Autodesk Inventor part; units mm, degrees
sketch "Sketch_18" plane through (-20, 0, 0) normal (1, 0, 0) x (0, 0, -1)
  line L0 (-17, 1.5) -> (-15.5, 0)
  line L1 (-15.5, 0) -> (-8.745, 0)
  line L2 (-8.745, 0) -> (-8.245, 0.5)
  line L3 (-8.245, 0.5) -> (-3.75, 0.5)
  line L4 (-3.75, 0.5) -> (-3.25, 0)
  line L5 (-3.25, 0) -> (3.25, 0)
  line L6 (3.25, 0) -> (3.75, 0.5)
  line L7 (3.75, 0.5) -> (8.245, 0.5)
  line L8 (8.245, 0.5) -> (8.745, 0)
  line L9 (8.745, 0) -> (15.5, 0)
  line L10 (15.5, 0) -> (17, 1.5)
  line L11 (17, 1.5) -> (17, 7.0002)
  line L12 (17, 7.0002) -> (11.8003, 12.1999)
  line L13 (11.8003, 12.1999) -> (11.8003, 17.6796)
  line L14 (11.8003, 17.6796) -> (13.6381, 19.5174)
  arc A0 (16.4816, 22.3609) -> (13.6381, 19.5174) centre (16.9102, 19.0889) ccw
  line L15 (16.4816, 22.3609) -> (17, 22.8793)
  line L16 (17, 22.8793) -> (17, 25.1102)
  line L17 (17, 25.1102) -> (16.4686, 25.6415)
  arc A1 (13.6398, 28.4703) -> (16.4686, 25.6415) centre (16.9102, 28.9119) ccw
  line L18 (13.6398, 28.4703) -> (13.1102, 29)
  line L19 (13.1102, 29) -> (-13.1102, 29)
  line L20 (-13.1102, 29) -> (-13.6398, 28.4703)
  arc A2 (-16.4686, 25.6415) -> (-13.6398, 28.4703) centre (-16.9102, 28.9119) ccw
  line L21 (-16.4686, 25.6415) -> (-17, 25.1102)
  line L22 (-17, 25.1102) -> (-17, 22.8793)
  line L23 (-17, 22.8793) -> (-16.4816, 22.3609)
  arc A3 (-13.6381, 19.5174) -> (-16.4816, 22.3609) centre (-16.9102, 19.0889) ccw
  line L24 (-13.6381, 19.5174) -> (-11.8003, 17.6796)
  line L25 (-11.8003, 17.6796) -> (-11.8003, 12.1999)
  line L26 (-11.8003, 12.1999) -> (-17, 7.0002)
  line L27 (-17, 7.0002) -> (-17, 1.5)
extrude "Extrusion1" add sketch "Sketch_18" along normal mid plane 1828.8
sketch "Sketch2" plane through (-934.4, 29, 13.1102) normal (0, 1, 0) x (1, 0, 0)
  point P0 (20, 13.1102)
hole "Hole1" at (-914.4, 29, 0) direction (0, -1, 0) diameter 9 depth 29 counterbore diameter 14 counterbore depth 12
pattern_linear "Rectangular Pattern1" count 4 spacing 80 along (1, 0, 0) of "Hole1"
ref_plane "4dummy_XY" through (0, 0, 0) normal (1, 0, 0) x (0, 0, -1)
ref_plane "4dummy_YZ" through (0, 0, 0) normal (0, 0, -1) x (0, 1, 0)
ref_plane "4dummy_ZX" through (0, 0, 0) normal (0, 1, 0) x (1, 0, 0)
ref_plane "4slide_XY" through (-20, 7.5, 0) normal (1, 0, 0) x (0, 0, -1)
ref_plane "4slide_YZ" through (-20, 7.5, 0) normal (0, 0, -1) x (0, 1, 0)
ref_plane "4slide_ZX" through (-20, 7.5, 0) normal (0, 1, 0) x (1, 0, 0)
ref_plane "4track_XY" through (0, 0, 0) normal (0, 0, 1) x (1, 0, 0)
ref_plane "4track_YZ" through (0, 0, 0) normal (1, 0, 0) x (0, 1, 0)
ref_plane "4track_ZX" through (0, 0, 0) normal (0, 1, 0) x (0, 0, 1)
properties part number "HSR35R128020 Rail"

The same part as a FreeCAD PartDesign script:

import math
import FreeCAD as App
import Part
import Sketcher

doc = App.newDocument("Part")
body = doc.addObject("PartDesign::Body", "Body")

# Sketch on YZ plane
sketch1 = doc.addObject("Sketcher::SketchObject", "Sketch")
body.addObject(sketch1)
sketch1.AttachmentSupport = (doc.YZ_Plane, [""])
sketch1.MapMode = "FlatFace"
sketch1.AttachmentOffset = App.Placement(App.Vector(0, 0, -20), App.Rotation())
sketch1.addGeometry(Part.LineSegment(App.Vector(7.0002, 17, 0), App.Vector(1.5, 17, 0)), False)
sketch1.addGeometry(Part.LineSegment(App.Vector(1.5, 17, 0), App.Vector(0, 15.5, 0)), False)
sketch1.addGeometry(Part.LineSegment(App.Vector(0, 15.5, 0), App.Vector(0, 8.745, 0)), False)
sketch1.addGeometry(Part.LineSegment(App.Vector(0, 8.745, 0), App.Vector(0.5, 8.245, 0)), False)
sketch1.addGeometry(Part.LineSegment(App.Vector(0.5, 8.245, 0), App.Vector(0.5, 3.75, 0)), False)
sketch1.addGeometry(Part.LineSegment(App.Vector(0.5, 3.75, 0), App.Vector(0, 3.25, 0)), False)
sketch1.addGeometry(Part.LineSegment(App.Vector(0, 3.25, 0), App.Vector(0, -3.25, 0)), False)
sketch1.addGeometry(Part.LineSegment(App.Vector(0, -3.25, 0), App.Vector(0.5, -3.75, 0)), False)
sketch1.addGeometry(Part.LineSegment(App.Vector(0.5, -3.75, 0), App.Vector(0.5, -8.245, 0)), False)
sketch1.addGeometry(Part.LineSegment(App.Vector(0.5, -8.245, 0), App.Vector(0, -8.745, 0)), False)
sketch1.addGeometry(Part.LineSegment(App.Vector(0, -8.745, 0), App.Vector(0, -15.5, 0)), False)
sketch1.addGeometry(Part.LineSegment(App.Vector(0, -15.5, 0), App.Vector(1.5, -17, 0)), False)
sketch1.addGeometry(Part.LineSegment(App.Vector(1.5, -17, 0), App.Vector(7.0002, -17, 0)), False)
sketch1.addGeometry(Part.LineSegment(App.Vector(7.0002, -17, 0), App.Vector(12.1999, -11.8003, 0)), False)
sketch1.addGeometry(Part.LineSegment(App.Vector(12.1999, -11.8003, 0), App.Vector(17.6796, -11.8003, 0)), False)
sketch1.addGeometry(Part.LineSegment(App.Vector(17.6796, -11.8003, 0), App.Vector(19.5174, -13.6381, 0)), False)
sketch1.addGeometry(Part.ArcOfCircle(Part.Circle(App.Vector(19.0889, -16.9102, 0), App.Vector(0, 0, 1), 3.299952), math.radians(7.462698), math.radians(82.539249)), False)
sketch1.addGeometry(Part.LineSegment(App.Vector(22.3609, -16.4816, 0), App.Vector(22.8793, -17, 0)), False)
sketch1.addGeometry(Part.LineSegment(App.Vector(22.8793, -17, 0), App.Vector(25.1102, -17, 0)), False)
sketch1.addGeometry(Part.LineSegment(App.Vector(25.1102, -17, 0), App.Vector(25.6415, -16.4686, 0)), False)
sketch1.addGeometry(Part.ArcOfCircle(Part.Circle(App.Vector(28.9119, -16.9102, 0), App.Vector(0, 0, 1), 3.30008), math.radians(97.6901), math.radians(172.3099)), False)
sketch1.addGeometry(Part.LineSegment(App.Vector(28.4703, -13.6398, 0), App.Vector(29, -13.1102, 0)), False)
sketch1.addGeometry(Part.LineSegment(App.Vector(29, -13.1102, 0), App.Vector(29, 13.1102, 0)), False)
sketch1.addGeometry(Part.LineSegment(App.Vector(29, 13.1102, 0), App.Vector(28.4703, 13.6398, 0)), False)
sketch1.addGeometry(Part.ArcOfCircle(Part.Circle(App.Vector(28.9119, 16.9102, 0), App.Vector(0, 0, 1), 3.30008), math.radians(-172.3099), math.radians(-97.6901)), False)
sketch1.addGeometry(Part.LineSegment(App.Vector(25.6415, 16.4686, 0), App.Vector(25.1102, 17, 0)), False)
sketch1.addGeometry(Part.LineSegment(App.Vector(25.1102, 17, 0), App.Vector(22.8793, 17, 0)), False)
sketch1.addGeometry(Part.LineSegment(App.Vector(22.8793, 17, 0), App.Vector(22.3609, 16.4816, 0)), False)
sketch1.addGeometry(Part.ArcOfCircle(Part.Circle(App.Vector(19.0889, 16.9102, 0), App.Vector(0, 0, 1), 3.300038), math.radians(-82.539249), math.radians(-7.462698)), False)
sketch1.addGeometry(Part.LineSegment(App.Vector(19.5174, 13.6381, 0), App.Vector(17.6796, 11.8003, 0)), False)
sketch1.addGeometry(Part.LineSegment(App.Vector(17.6796, 11.8003, 0), App.Vector(12.1999, 11.8003, 0)), False)
sketch1.addGeometry(Part.LineSegment(App.Vector(12.1999, 11.8003, 0), App.Vector(7.0002, 17, 0)), False)
sketch1.addConstraint(Sketcher.Constraint("Coincident", 0, 2, 1, 1))
sketch1.addConstraint(Sketcher.Constraint("Coincident", 1, 2, 2, 1))
sketch1.addConstraint(Sketcher.Constraint("Coincident", 2, 2, 3, 1))
sketch1.addConstraint(Sketcher.Constraint("Coincident", 3, 2, 4, 1))
sketch1.addConstraint(Sketcher.Constraint("Coincident", 4, 2, 5, 1))
sketch1.addConstraint(Sketcher.Constraint("Coincident", 5, 2, 6, 1))
sketch1.addConstraint(Sketcher.Constraint("Coincident", 6, 2, 7, 1))
sketch1.addConstraint(Sketcher.Constraint("Coincident", 7, 2, 8, 1))
sketch1.addConstraint(Sketcher.Constraint("Coincident", 8, 2, 9, 1))
sketch1.addConstraint(Sketcher.Constraint("Coincident", 9, 2, 10, 1))
sketch1.addConstraint(Sketcher.Constraint("Coincident", 10, 2, 11, 1))
sketch1.addConstraint(Sketcher.Constraint("Coincident", 11, 2, 12, 1))
sketch1.addConstraint(Sketcher.Constraint("Coincident", 12, 2, 13, 1))
sketch1.addConstraint(Sketcher.Constraint("Coincident", 13, 2, 14, 1))
sketch1.addConstraint(Sketcher.Constraint("Coincident", 14, 2, 15, 1))
sketch1.addConstraint(Sketcher.Constraint("Coincident", 15, 2, 16, 2))
sketch1.addConstraint(Sketcher.Constraint("Coincident", 16, 1, 17, 1))
sketch1.addConstraint(Sketcher.Constraint("Coincident", 17, 2, 18, 1))
sketch1.addConstraint(Sketcher.Constraint("Coincident", 18, 2, 19, 1))
sketch1.addConstraint(Sketcher.Constraint("Coincident", 19, 2, 20, 2))
sketch1.addConstraint(Sketcher.Constraint("Coincident", 20, 1, 21, 1))
sketch1.addConstraint(Sketcher.Constraint("Coincident", 21, 2, 22, 1))
sketch1.addConstraint(Sketcher.Constraint("Coincident", 22, 2, 23, 1))
sketch1.addConstraint(Sketcher.Constraint("Coincident", 23, 2, 24, 2))
sketch1.addConstraint(Sketcher.Constraint("Coincident", 24, 1, 25, 1))
sketch1.addConstraint(Sketcher.Constraint("Coincident", 25, 2, 26, 1))
sketch1.addConstraint(Sketcher.Constraint("Coincident", 26, 2, 27, 1))
sketch1.addConstraint(Sketcher.Constraint("Coincident", 27, 2, 28, 2))
sketch1.addConstraint(Sketcher.Constraint("Coincident", 28, 1, 29, 1))
sketch1.addConstraint(Sketcher.Constraint("Coincident", 29, 2, 30, 1))
sketch1.addConstraint(Sketcher.Constraint("Coincident", 30, 2, 31, 1))
sketch1.addConstraint(Sketcher.Constraint("Coincident", 31, 2, 0, 1))
sketch1.addConstraint(Sketcher.Constraint("Horizontal", 0))
sketch1.addConstraint(Sketcher.Constraint("Vertical", 2))
sketch1.addConstraint(Sketcher.Constraint("Vertical", 4))
sketch1.addConstraint(Sketcher.Constraint("Vertical", 6))
sketch1.addConstraint(Sketcher.Constraint("Vertical", 8))
sketch1.addConstraint(Sketcher.Constraint("Vertical", 10))
sketch1.addConstraint(Sketcher.Constraint("Horizontal", 12))
sketch1.addConstraint(Sketcher.Constraint("Horizontal", 14))
sketch1.addConstraint(Sketcher.Constraint("Horizontal", 18))
sketch1.addConstraint(Sketcher.Constraint("Vertical", 22))
sketch1.addConstraint(Sketcher.Constraint("Horizontal", 26))
sketch1.addConstraint(Sketcher.Constraint("Horizontal", 30))
sketch1.addConstraint(Sketcher.Constraint("PointOnObject", 1, 2, -2))
sketch1.addConstraint(Sketcher.Constraint("PointOnObject", 5, 2, -2))
sketch1.addConstraint(Sketcher.Constraint("PointOnObject", 9, 2, -2))
sketch1.addConstraint(Sketcher.Constraint("Radius", 16, 3.3))
sketch1.addConstraint(Sketcher.Constraint("Radius", 20, 3.3))
sketch1.addConstraint(Sketcher.Constraint("Radius", 24, 3.3))
sketch1.addConstraint(Sketcher.Constraint("Radius", 28, 3.3))
sketch1.addConstraint(Sketcher.Constraint("DistanceY", 6, 2, 6, 1, 6.5))
sketch1.addConstraint(Sketcher.Constraint("DistanceY", -1, 1, 0, 2, 17.0))
sketch1.addConstraint(Sketcher.Constraint("DistanceY", 11, 2, -1, 1, 17.0))
sketch1.addConstraint(Sketcher.Constraint("DistanceY", 17, 2, -1, 1, 17.0))
sketch1.addConstraint(Sketcher.Constraint("DistanceX", -1, 1, 21, 2, 29.0))
sketch1.addConstraint(Sketcher.Constraint("DistanceY", -1, 1, 25, 2, 17.0))
sketch1.addConstraint(Sketcher.Constraint("DistanceX", 3, 2, 0, 2, 1.0))
sketch1.addConstraint(Sketcher.Constraint("DistanceY", 6, 2, 4, 2, 7.0))
sketch1.addConstraint(Sketcher.Constraint("DistanceY", 7, 2, 5, 2, 7.0))
sketch1.addConstraint(Sketcher.Constraint("DistanceX", 8, 2, 11, 2, 1.0))
sketch1.addConstraint(Sketcher.Constraint("DistanceX", -1, 1, 0, 2, 1.5))
sketch1.addConstraint(Sketcher.Constraint("DistanceY", -1, 1, 1, 2, 15.5))
sketch1.addConstraint(Sketcher.Constraint("DistanceX", -1, 1, 7, 2, 0.5))
sketch1.addConstraint(Sketcher.Constraint("DistanceY", 10, 2, -1, 1, 15.5))
sketch1.addConstraint(Sketcher.Constraint("DistanceX", -1, 1, 13, 2, 12.2))
sketch1.addConstraint(Sketcher.Constraint("DistanceX", -1, 1, 30, 2, 12.2))
sketch1.addConstraint(Sketcher.Constraint("DistanceY", 3, 2, 2, 2, 0.5))
sketch1.addConstraint(Sketcher.Constraint("DistanceY", 9, 2, 8, 2, 0.5))
sketch1.addConstraint(Sketcher.Constraint("DistanceY", 20, 3, 21, 2, 3.8))
sketch1.addConstraint(Sketcher.Constraint("DistanceY", 22, 2, 24, 3, 3.8))
sketch1.addConstraint(Sketcher.Constraint("DistanceY", 22, 2, 28, 3, 3.8))
sketch1.addConstraint(Sketcher.Constraint("DistanceX", 18, 1, 18, 2, 2.231))
sketch1.addConstraint(Sketcher.Constraint("DistanceX", 26, 2, 26, 1, 2.231))
sketch1.addConstraint(Sketcher.Constraint("DistanceY", 2, 2, 2, 1, 6.755))
sketch1.addConstraint(Sketcher.Constraint("DistanceY", 4, 2, 4, 1, 4.495))
sketch1.addConstraint(Sketcher.Constraint("DistanceY", 8, 2, 8, 1, 4.495))
sketch1.addConstraint(Sketcher.Constraint("DistanceY", 16, 3, 13, 2, 5.11))
sketch1.addConstraint(Sketcher.Constraint("DistanceY", 20, 3, 14, 2, 5.11))
sketch1.addConstraint(Sketcher.Constraint("DistanceX", 18, 2, 20, 1, 3.36))
sketch1.addConstraint(Sketcher.Constraint("DistanceY", 20, 1, 22, 2, 26.75))
sketch1.addConstraint(Sketcher.Constraint("DistanceY", 21, 2, 23, 2, 26.75))
sketch1.addConstraint(Sketcher.Constraint("DistanceX", 25, 2, 23, 2, 3.36))
sketch1.addConstraint(Sketcher.Constraint("DistanceY", 29, 2, 28, 3, 5.11))
sketch1.addConstraint(Sketcher.Constraint("Distance", 15, 2.599))
sketch1.addConstraint(Sketcher.Constraint("Distance", 21, 0.749))
sketch1.addConstraint(Sketcher.Constraint("Distance", 23, 0.749))
sketch1.addConstraint(Sketcher.Constraint("Distance", 29, 2.599))
sketch1.addConstraint(Sketcher.Constraint("DistanceX", 0, 2, 0, 1, 5.5002))
sketch1.addConstraint(Sketcher.Constraint("DistanceX", 12, 1, 12, 2, 5.5002))
sketch1.addConstraint(Sketcher.Constraint("DistanceX", 14, 1, 14, 2, 5.4797))
sketch1.addConstraint(Sketcher.Constraint("DistanceX", 30, 2, 30, 1, 5.4797))
sketch1.addConstraint(Sketcher.Constraint("DistanceY", 22, 1, 22, 2, 26.2204))
sketch1.addConstraint(Sketcher.Constraint("DistanceX", -1, 1, 16, 3, 19.089))
sketch1.addConstraint(Sketcher.Constraint("DistanceX", -1, 1, 28, 3, 19.089))
sketch1.addConstraint(Sketcher.Constraint("DistanceY", 15, 2, -1, 1, 13.638))
sketch1.addConstraint(Sketcher.Constraint("DistanceX", -1, 1, 16, 1, 22.361))
sketch1.addConstraint(Sketcher.Constraint("DistanceX", -1, 1, 27, 2, 22.361))
sketch1.addConstraint(Sketcher.Constraint("DistanceY", 16, 1, 19, 2, 0.013))
sketch1.addConstraint(Sketcher.Constraint("DistanceY", 24, 1, 27, 2, 0.013))
pad1 = doc.addObject("PartDesign::Pad", "Pad")
body.addObject(pad1)
pad1.Profile = sketch1
pad1.Length = 1828.8
pad1.Midplane = True

# Sketch on XZ plane
sketch2 = doc.addObject("Sketcher::SketchObject", "Sketch001")
body.addObject(sketch2)
sketch2.AttachmentSupport = (doc.XZ_Plane, [""])
sketch2.MapMode = "FlatFace"
sketch2.AttachmentOffset = App.Placement(App.Vector(0, 0, -29), App.Rotation())
sketch2.addGeometry(Part.Circle(App.Vector(-914.4, 0, 0), App.Vector(0, 0, 1), 4.5), False)
sketch2.addConstraint(Sketcher.Constraint("PointOnObject", 0, 3, -1))
sketch2.addConstraint(Sketcher.Constraint("Diameter", 0, 9.0))
sketch2.addConstraint(Sketcher.Constraint("DistanceX", 0, 3, -1, 1, 914.4))
doc.recompute()
hole = doc.addObject("PartDesign::Hole", "Hole")
body.addObject(hole)
hole.Profile = sketch2
hole.ThreadType = "None"
hole.Diameter = 9
hole.DepthType = "Dimension"
hole.Depth = 29
hole.DrillPoint = "Flat"
hole.HoleCutType = "Counterbore"
hole.HoleCutDiameter = 14
hole.HoleCutDepth = 12
hole.Reversed = True
doc.recompute()

linearpattern = doc.addObject("PartDesign::LinearPattern", "LinearPattern")
body.addObject(linearpattern)
linearpattern.Originals = [hole]
linearpattern.Direction = (doc.X_Axis, [""])
linearpattern.Mode = "offset"
linearpattern.Offset = 80
linearpattern.Occurrences = 4
body.Tip = linearpattern

doc.recompute()
